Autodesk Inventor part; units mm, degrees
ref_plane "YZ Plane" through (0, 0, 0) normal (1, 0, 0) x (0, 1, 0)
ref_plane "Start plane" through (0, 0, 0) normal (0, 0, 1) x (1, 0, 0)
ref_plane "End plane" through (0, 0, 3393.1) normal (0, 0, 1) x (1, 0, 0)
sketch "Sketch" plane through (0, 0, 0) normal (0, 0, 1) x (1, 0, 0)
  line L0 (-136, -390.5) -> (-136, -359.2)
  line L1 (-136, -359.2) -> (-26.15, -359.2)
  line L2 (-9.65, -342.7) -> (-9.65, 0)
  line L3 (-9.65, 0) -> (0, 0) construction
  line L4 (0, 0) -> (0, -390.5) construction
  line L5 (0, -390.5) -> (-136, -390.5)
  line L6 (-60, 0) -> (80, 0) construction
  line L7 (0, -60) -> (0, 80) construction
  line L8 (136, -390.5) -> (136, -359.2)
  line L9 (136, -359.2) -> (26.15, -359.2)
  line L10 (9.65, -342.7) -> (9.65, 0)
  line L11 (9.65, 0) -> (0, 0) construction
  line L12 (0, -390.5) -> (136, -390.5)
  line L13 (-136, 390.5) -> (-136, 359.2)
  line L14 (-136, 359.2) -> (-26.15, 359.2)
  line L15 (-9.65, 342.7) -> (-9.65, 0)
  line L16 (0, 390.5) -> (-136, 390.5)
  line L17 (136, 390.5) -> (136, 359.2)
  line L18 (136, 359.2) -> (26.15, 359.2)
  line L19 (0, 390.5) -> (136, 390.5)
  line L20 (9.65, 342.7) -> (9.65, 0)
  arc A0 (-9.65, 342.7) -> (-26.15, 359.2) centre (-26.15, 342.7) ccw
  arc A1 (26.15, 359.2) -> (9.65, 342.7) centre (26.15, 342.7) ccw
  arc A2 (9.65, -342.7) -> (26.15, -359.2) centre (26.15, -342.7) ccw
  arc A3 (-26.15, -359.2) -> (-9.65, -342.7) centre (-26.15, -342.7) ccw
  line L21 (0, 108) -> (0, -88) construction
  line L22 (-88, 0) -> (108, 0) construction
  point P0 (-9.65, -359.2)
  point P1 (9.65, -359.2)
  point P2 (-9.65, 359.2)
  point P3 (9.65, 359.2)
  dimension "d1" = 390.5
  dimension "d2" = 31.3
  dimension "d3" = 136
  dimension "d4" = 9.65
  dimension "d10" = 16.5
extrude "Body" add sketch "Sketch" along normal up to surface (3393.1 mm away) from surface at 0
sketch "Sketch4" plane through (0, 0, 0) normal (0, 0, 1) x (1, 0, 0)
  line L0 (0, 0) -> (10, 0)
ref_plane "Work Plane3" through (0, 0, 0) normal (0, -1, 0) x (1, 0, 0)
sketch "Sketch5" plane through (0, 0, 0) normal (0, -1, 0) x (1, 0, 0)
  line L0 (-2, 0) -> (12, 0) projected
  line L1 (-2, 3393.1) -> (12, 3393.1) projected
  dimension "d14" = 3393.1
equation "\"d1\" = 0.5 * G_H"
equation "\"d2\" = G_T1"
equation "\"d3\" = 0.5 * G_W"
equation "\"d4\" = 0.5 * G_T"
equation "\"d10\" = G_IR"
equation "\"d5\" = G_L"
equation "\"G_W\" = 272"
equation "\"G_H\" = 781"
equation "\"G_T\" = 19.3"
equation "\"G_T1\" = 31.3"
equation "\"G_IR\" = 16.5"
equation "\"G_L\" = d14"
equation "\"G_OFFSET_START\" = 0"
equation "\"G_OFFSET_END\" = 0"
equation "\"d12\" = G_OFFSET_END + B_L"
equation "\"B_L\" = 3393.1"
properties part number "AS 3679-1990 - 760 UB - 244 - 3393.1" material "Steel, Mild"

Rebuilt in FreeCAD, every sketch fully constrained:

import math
import FreeCAD as App
import Part
import Sketcher
Q = App.Units.Quantity

doc = App.newDocument("Part")
body = doc.addObject("PartDesign::Body", "Body")

sketch1 = body.newObject("Sketcher::SketchObject", "Sketch")
sketch1.AttachmentSupport = (doc.getObject("XY_Plane"), [""])
sketch1.MapMode = "FlatFace"
sketch1.addGeometry([
    Part.LineSegment(App.Vector(-136, -359, 0), App.Vector(-136, -390, 0)),
    Part.LineSegment(App.Vector(-136, -390, 0), App.Vector(136, -390, 0)),
    Part.LineSegment(App.Vector(136, -390, 0), App.Vector(136, -359, 0)),
    Part.LineSegment(App.Vector(136, -359, 0), App.Vector(26, -359, 0)),
    Part.ArcOfCircle(Part.Circle(App.Vector(26, -343, 0), App.Vector(0, 0, 1), 16), math.radians(180), math.radians(270)),
    Part.LineSegment(App.Vector(10, -343, 0), App.Vector(10, 343, 0)),
    Part.ArcOfCircle(Part.Circle(App.Vector(26, 343, 0), App.Vector(0, 0, 1), 16), math.radians(90), math.radians(180)),
    Part.LineSegment(App.Vector(26, 359, 0), App.Vector(136, 359, 0)),
    Part.LineSegment(App.Vector(136, 359, 0), App.Vector(136, 390, 0)),
    Part.LineSegment(App.Vector(136, 390, 0), App.Vector(-136, 390, 0)),
    Part.LineSegment(App.Vector(-136, 390, 0), App.Vector(-136, 359, 0)),
    Part.LineSegment(App.Vector(-136, 359, 0), App.Vector(-26, 359, 0)),
    Part.ArcOfCircle(Part.Circle(App.Vector(-26, 343, 0), App.Vector(0, 0, 1), 16), math.radians(0), math.radians(90)),
    Part.LineSegment(App.Vector(-10, 343, 0), App.Vector(-10, -343, 0)),
    Part.ArcOfCircle(Part.Circle(App.Vector(-26, -343, 0), App.Vector(0, 0, 1), 16), math.radians(-90), math.radians(0)),
    Part.LineSegment(App.Vector(-26, -359, 0), App.Vector(-136, -359, 0)),
], False)
sketch1.addConstraint([
    Sketcher.Constraint("Coincident", 0, 2, 1, 1),
    Sketcher.Constraint("Coincident", 1, 2, 2, 1),
    Sketcher.Constraint("Coincident", 2, 2, 3, 1),
    Sketcher.Constraint("Tangent", 3, 2, 4, 2),
    Sketcher.Constraint("Tangent", 4, 1, 5, 1),
    Sketcher.Constraint("Tangent", 5, 2, 6, 2),
    Sketcher.Constraint("Tangent", 6, 1, 7, 1),
    Sketcher.Constraint("Coincident", 7, 2, 8, 1),
    Sketcher.Constraint("Coincident", 8, 2, 9, 1),
    Sketcher.Constraint("Coincident", 9, 2, 10, 1),
    Sketcher.Constraint("Coincident", 10, 2, 11, 1),
    Sketcher.Constraint("Tangent", 11, 2, 12, 2),
    Sketcher.Constraint("Tangent", 12, 1, 13, 1),
    Sketcher.Constraint("Tangent", 13, 2, 14, 2),
    Sketcher.Constraint("Tangent", 14, 1, 15, 1),
    Sketcher.Constraint("Coincident", 15, 2, 0, 1),
    Sketcher.Constraint("Vertical", 0),
    Sketcher.Constraint("Horizontal", 1),
    Sketcher.Constraint("Vertical", 2),
    Sketcher.Constraint("Horizontal", 3),
    Sketcher.Constraint("Vertical", 5),
    Sketcher.Constraint("Horizontal", 7),
    Sketcher.Constraint("Vertical", 8),
    Sketcher.Constraint("Horizontal", 9),
    Sketcher.Constraint("Vertical", 10),
    Sketcher.Constraint("Horizontal", 11),
    Sketcher.Constraint("Vertical", 13),
    Sketcher.Constraint("Horizontal", 15),
    Sketcher.Constraint("Equal", 4, 6),
    Sketcher.Constraint("Equal", 6, 12),
    Sketcher.Constraint("Equal", 12, 14),
    Sketcher.Constraint("Symmetric", 4, 3, 12, 3, -1, 1),
    Sketcher.Constraint("Symmetric", 0, 2, 8, 2, -1, 1),
    Sketcher.Constraint("Symmetric", 7, 2, 10, 2, -2),
    Sketcher.Constraint("Symmetric", 2, 2, 15, 2, -2),
    Sketcher.Constraint("Radius", 4, Q("16.5 mm")),
    Sketcher.Constraint("DistanceY", 0, 2, 0, 1, Q("31.3 mm")),
    Sketcher.Constraint("DistanceX", 0, 2, -1, 1, Q("136 mm")),
    Sketcher.Constraint("DistanceY", 0, 2, -1, 1, Q("390.5 mm")),
    Sketcher.Constraint("DistanceX", -1, 1, 4, 1, Q("9.65 mm")),
])
pad1 = body.newObject("PartDesign::Pad", "Pad")
pad1.Profile = sketch1
pad1.Length = 3393.1

doc.recompute()
